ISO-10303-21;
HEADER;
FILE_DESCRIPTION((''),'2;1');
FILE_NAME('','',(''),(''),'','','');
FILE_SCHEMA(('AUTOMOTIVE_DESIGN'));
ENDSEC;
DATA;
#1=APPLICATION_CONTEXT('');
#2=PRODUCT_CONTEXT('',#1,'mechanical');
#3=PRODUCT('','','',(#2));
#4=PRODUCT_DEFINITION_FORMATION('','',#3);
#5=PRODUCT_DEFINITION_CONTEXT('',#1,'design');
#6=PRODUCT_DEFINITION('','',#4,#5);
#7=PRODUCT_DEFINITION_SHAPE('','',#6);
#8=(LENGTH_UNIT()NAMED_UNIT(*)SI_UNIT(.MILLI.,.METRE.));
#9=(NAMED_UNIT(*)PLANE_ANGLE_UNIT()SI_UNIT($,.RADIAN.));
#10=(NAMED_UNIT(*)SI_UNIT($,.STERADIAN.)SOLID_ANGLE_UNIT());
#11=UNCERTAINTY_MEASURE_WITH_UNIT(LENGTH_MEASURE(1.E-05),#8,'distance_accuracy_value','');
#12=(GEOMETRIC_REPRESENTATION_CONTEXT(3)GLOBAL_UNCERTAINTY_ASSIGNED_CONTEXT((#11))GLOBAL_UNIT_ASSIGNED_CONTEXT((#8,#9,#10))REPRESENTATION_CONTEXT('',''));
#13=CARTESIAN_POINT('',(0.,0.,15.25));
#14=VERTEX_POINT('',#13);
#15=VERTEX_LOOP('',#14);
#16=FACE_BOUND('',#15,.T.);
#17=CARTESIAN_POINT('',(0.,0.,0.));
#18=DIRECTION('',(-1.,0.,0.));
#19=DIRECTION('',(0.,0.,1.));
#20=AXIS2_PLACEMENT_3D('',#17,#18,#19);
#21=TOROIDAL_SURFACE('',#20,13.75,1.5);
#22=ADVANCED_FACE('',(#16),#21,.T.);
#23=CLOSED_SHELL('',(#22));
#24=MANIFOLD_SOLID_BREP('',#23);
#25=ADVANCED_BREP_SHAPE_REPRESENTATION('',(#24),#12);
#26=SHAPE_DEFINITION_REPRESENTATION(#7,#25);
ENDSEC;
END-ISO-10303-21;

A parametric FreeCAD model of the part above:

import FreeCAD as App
import Part
import Sketcher

doc = App.newDocument("Part")
body = doc.addObject("PartDesign::Body", "Body")

# Sketch on XY plane
sketch1 = body.newObject("Sketcher::SketchObject", "Sketch")
sketch1.AttachmentSupport = (doc.getObject("XY_Plane"), [""])
sketch1.MapMode = "FlatFace"
sketch1.addGeometry(Part.Circle(App.Vector(0, 13.8, 0), App.Vector(0, 0, 1), 1.5), False)
sketch1.addConstraint([
    Sketcher.Constraint("PointOnObject", 0, 3, -2),
    Sketcher.Constraint("Diameter", 0, 3.0),
    Sketcher.Constraint("DistanceY", -1, 1, 0, 3, 13.75),
])
revolution = body.newObject("PartDesign::Revolution", "Revolution")
revolution.Profile = sketch1
revolution.ReferenceAxis = (sketch1, ["H_Axis"])
revolution.Angle = 360

doc.recompute()
